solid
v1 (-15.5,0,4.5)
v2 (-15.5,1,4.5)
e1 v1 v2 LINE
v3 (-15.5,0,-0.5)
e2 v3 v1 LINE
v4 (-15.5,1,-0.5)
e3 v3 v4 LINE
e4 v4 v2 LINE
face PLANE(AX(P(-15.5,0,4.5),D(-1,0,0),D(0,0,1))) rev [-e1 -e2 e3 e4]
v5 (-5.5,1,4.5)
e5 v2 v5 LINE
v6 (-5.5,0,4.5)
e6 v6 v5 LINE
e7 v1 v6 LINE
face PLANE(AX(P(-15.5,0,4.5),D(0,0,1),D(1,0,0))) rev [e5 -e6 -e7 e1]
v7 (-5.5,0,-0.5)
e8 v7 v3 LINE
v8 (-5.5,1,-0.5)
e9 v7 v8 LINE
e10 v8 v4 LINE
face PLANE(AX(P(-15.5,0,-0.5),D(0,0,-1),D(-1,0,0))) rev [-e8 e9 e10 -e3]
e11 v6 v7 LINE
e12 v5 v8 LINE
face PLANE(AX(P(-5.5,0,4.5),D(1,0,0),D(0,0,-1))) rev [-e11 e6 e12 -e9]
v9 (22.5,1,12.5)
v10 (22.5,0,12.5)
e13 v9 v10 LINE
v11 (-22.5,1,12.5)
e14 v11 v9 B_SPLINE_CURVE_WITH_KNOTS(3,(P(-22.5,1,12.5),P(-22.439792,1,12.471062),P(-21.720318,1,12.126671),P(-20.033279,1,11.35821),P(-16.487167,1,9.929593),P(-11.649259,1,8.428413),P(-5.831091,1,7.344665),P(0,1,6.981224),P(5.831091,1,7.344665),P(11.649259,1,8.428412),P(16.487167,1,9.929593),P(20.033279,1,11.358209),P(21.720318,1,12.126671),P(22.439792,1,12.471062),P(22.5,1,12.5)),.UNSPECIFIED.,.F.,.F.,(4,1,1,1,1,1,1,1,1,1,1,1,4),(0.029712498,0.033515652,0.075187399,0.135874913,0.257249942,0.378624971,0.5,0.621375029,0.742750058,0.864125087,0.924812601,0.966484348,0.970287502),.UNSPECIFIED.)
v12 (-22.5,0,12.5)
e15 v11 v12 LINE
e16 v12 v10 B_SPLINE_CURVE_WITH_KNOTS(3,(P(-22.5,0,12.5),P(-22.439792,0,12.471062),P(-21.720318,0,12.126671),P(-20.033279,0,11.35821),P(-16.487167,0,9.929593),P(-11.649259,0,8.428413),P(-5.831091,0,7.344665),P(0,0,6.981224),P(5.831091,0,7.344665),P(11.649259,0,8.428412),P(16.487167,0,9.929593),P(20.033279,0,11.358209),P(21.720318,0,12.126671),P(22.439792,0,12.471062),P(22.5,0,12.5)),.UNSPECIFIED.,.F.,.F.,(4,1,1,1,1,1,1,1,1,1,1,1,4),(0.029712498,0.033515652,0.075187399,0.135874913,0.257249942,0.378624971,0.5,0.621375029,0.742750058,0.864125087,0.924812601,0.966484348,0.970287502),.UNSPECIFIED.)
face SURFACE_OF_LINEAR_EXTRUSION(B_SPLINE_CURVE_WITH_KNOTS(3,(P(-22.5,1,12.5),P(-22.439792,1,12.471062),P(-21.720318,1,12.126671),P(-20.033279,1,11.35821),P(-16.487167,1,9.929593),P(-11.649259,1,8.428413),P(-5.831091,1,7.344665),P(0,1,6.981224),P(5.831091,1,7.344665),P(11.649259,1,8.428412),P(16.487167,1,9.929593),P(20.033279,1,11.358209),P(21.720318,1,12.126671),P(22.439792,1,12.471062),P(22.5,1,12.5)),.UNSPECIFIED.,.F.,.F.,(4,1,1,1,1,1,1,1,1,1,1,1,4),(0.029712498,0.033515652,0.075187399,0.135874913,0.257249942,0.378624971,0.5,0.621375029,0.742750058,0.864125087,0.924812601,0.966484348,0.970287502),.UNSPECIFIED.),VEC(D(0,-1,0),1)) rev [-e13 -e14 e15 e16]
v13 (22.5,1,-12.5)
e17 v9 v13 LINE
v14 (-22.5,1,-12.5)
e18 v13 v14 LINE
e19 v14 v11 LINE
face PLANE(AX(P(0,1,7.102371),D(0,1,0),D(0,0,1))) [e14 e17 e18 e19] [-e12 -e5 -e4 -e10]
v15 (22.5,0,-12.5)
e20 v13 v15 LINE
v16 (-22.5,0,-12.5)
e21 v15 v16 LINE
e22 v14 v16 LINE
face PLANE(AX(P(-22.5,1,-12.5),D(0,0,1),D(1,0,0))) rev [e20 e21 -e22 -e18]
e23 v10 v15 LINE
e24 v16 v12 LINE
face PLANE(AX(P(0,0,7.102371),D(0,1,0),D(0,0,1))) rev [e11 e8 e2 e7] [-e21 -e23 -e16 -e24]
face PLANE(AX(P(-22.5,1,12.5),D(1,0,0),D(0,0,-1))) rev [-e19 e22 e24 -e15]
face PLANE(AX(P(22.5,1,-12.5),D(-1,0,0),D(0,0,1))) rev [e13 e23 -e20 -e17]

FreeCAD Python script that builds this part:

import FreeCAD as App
import Part
import Sketcher
from FreeCAD import Vector
Q = App.Units.Quantity


def add_polygon(sketch, points):
    """Adds a closed chain of lines whose ends are joined by coincident constraints."""
    first, n = sketch.GeometryCount, len(points)
    for a, b in zip(points, points[1:] + points[:1]):
        sketch.addGeometry(Part.LineSegment(App.Vector(*a, 0), App.Vector(*b, 0)), False)
    for i in range(n):
        sketch.addConstraint(Sketcher.Constraint("Coincident", first + i, 2, first + (i + 1) % n, 1))

doc = App.newDocument("Part")
body = doc.addObject("PartDesign::Body", "Body")

# Sketch on XZ plane
sketch1 = body.newObject("Sketcher::SketchObject", "Sketch")
sketch1.AttachmentSupport = (doc.getObject("XZ_Plane"), [""])
sketch1.MapMode = "FlatFace"
sketch1.addGeometry(Part.LineSegment(Vector(-22.5, -12.5, 0), Vector(-22.5, 12.5, 0)), False)
sketch1.addGeometry(Part.BSplineCurve([Vector(-22.5, 12.5, 0), Vector(-22.439792, 12.471062, 0), Vector(-21.720318, 12.126671, 0), Vector(-20.033279, 11.35821, 0), Vector(-16.487167, 9.929593, 0), Vector(-11.649259, 8.428413, 0), Vector(-5.831091, 7.344665, 0), Vector(0, 6.981224, 0), Vector(5.831091, 7.344665, 0), Vector(11.649259, 8.428412, 0), Vector(16.487167, 9.929593, 0), Vector(20.033279, 11.358209, 0), Vector(21.720318, 12.126671, 0), Vector(22.439792, 12.471062, 0), Vector(22.5, 12.5, 0)], [4, 1, 1, 1, 1, 1, 1, 1, 1, 1, 1, 1, 4], [0.029712498, 0.033515652, 0.075187399, 0.135874913, 0.257249942, 0.378624971, 0.5, 0.621375029, 0.742750058, 0.864125087, 0.924812601, 0.966484348, 0.970287502], False, 3, [1, 1, 1, 1, 1, 1, 1, 1, 1, 1, 1, 1, 1, 1, 1], False), False)
sketch1.addGeometry(Part.LineSegment(Vector(22.5, 12.5, 0), Vector(22.5, -12.5, 0)), False)
sketch1.addGeometry(Part.LineSegment(Vector(22.5, -12.5, 0), Vector(-22.5, -12.5, 0)), False)
sketch1.addConstraint(Sketcher.Constraint("Block", 1))
sketch1.addConstraint(Sketcher.Constraint("Coincident", 0, 2, 1, 1))
sketch1.addConstraint(Sketcher.Constraint("Coincident", 1, 2, 2, 1))
sketch1.addConstraint(Sketcher.Constraint("Coincident", 2, 2, 3, 1))
sketch1.addConstraint(Sketcher.Constraint("Coincident", 3, 2, 0, 1))
sketch1.addConstraint(Sketcher.Constraint("Vertical", 0))
sketch1.addConstraint(Sketcher.Constraint("Vertical", 2))
sketch1.addConstraint(Sketcher.Constraint("Horizontal", 3))
sketch1.addConstraint(Sketcher.Constraint("DistanceY", 0, 1, 0, 2, Q("25.000001 mm")))
pad1 = body.newObject("PartDesign::Pad", "Pad")
pad1.Profile = sketch1
pad1.Length = 1
pad1.Reversed = True

# Sketch on XZ plane
sketch2 = body.newObject("Sketcher::SketchObject", "Sketch001")
sketch2.AttachmentSupport = (doc.getObject("XZ_Plane"), [""])
sketch2.MapMode = "FlatFace"
sketch2.AttachmentOffset = App.Placement(Vector(0, 0, -1), App.Rotation())
add_polygon(sketch2, [(-16, -1), (-16, 4), (-6, 4), (-6, -1)])  # lines 0-3
sketch2.addConstraint(Sketcher.Constraint("Vertical", 0))
sketch2.addConstraint(Sketcher.Constraint("Horizontal", 1))
sketch2.addConstraint(Sketcher.Constraint("Vertical", 2))
sketch2.addConstraint(Sketcher.Constraint("Horizontal", 3))
sketch2.addConstraint(Sketcher.Constraint("DistanceX", 1, 1, 1, 2, Q("10 mm")))
sketch2.addConstraint(Sketcher.Constraint("DistanceY", 0, 1, 0, 2, Q("5 mm")))
sketch2.addConstraint(Sketcher.Constraint("DistanceX", 0, 2, -1, 1, Q("15.5 mm")))
sketch2.addConstraint(Sketcher.Constraint("DistanceY", -1, 1, 0, 2, Q("4.5 mm")))
pocket1 = body.newObject("PartDesign::Pocket", "Pocket")
pocket1.Profile = sketch2
pocket1.Length = 1
pocket1.Reversed = True

doc.recompute()
